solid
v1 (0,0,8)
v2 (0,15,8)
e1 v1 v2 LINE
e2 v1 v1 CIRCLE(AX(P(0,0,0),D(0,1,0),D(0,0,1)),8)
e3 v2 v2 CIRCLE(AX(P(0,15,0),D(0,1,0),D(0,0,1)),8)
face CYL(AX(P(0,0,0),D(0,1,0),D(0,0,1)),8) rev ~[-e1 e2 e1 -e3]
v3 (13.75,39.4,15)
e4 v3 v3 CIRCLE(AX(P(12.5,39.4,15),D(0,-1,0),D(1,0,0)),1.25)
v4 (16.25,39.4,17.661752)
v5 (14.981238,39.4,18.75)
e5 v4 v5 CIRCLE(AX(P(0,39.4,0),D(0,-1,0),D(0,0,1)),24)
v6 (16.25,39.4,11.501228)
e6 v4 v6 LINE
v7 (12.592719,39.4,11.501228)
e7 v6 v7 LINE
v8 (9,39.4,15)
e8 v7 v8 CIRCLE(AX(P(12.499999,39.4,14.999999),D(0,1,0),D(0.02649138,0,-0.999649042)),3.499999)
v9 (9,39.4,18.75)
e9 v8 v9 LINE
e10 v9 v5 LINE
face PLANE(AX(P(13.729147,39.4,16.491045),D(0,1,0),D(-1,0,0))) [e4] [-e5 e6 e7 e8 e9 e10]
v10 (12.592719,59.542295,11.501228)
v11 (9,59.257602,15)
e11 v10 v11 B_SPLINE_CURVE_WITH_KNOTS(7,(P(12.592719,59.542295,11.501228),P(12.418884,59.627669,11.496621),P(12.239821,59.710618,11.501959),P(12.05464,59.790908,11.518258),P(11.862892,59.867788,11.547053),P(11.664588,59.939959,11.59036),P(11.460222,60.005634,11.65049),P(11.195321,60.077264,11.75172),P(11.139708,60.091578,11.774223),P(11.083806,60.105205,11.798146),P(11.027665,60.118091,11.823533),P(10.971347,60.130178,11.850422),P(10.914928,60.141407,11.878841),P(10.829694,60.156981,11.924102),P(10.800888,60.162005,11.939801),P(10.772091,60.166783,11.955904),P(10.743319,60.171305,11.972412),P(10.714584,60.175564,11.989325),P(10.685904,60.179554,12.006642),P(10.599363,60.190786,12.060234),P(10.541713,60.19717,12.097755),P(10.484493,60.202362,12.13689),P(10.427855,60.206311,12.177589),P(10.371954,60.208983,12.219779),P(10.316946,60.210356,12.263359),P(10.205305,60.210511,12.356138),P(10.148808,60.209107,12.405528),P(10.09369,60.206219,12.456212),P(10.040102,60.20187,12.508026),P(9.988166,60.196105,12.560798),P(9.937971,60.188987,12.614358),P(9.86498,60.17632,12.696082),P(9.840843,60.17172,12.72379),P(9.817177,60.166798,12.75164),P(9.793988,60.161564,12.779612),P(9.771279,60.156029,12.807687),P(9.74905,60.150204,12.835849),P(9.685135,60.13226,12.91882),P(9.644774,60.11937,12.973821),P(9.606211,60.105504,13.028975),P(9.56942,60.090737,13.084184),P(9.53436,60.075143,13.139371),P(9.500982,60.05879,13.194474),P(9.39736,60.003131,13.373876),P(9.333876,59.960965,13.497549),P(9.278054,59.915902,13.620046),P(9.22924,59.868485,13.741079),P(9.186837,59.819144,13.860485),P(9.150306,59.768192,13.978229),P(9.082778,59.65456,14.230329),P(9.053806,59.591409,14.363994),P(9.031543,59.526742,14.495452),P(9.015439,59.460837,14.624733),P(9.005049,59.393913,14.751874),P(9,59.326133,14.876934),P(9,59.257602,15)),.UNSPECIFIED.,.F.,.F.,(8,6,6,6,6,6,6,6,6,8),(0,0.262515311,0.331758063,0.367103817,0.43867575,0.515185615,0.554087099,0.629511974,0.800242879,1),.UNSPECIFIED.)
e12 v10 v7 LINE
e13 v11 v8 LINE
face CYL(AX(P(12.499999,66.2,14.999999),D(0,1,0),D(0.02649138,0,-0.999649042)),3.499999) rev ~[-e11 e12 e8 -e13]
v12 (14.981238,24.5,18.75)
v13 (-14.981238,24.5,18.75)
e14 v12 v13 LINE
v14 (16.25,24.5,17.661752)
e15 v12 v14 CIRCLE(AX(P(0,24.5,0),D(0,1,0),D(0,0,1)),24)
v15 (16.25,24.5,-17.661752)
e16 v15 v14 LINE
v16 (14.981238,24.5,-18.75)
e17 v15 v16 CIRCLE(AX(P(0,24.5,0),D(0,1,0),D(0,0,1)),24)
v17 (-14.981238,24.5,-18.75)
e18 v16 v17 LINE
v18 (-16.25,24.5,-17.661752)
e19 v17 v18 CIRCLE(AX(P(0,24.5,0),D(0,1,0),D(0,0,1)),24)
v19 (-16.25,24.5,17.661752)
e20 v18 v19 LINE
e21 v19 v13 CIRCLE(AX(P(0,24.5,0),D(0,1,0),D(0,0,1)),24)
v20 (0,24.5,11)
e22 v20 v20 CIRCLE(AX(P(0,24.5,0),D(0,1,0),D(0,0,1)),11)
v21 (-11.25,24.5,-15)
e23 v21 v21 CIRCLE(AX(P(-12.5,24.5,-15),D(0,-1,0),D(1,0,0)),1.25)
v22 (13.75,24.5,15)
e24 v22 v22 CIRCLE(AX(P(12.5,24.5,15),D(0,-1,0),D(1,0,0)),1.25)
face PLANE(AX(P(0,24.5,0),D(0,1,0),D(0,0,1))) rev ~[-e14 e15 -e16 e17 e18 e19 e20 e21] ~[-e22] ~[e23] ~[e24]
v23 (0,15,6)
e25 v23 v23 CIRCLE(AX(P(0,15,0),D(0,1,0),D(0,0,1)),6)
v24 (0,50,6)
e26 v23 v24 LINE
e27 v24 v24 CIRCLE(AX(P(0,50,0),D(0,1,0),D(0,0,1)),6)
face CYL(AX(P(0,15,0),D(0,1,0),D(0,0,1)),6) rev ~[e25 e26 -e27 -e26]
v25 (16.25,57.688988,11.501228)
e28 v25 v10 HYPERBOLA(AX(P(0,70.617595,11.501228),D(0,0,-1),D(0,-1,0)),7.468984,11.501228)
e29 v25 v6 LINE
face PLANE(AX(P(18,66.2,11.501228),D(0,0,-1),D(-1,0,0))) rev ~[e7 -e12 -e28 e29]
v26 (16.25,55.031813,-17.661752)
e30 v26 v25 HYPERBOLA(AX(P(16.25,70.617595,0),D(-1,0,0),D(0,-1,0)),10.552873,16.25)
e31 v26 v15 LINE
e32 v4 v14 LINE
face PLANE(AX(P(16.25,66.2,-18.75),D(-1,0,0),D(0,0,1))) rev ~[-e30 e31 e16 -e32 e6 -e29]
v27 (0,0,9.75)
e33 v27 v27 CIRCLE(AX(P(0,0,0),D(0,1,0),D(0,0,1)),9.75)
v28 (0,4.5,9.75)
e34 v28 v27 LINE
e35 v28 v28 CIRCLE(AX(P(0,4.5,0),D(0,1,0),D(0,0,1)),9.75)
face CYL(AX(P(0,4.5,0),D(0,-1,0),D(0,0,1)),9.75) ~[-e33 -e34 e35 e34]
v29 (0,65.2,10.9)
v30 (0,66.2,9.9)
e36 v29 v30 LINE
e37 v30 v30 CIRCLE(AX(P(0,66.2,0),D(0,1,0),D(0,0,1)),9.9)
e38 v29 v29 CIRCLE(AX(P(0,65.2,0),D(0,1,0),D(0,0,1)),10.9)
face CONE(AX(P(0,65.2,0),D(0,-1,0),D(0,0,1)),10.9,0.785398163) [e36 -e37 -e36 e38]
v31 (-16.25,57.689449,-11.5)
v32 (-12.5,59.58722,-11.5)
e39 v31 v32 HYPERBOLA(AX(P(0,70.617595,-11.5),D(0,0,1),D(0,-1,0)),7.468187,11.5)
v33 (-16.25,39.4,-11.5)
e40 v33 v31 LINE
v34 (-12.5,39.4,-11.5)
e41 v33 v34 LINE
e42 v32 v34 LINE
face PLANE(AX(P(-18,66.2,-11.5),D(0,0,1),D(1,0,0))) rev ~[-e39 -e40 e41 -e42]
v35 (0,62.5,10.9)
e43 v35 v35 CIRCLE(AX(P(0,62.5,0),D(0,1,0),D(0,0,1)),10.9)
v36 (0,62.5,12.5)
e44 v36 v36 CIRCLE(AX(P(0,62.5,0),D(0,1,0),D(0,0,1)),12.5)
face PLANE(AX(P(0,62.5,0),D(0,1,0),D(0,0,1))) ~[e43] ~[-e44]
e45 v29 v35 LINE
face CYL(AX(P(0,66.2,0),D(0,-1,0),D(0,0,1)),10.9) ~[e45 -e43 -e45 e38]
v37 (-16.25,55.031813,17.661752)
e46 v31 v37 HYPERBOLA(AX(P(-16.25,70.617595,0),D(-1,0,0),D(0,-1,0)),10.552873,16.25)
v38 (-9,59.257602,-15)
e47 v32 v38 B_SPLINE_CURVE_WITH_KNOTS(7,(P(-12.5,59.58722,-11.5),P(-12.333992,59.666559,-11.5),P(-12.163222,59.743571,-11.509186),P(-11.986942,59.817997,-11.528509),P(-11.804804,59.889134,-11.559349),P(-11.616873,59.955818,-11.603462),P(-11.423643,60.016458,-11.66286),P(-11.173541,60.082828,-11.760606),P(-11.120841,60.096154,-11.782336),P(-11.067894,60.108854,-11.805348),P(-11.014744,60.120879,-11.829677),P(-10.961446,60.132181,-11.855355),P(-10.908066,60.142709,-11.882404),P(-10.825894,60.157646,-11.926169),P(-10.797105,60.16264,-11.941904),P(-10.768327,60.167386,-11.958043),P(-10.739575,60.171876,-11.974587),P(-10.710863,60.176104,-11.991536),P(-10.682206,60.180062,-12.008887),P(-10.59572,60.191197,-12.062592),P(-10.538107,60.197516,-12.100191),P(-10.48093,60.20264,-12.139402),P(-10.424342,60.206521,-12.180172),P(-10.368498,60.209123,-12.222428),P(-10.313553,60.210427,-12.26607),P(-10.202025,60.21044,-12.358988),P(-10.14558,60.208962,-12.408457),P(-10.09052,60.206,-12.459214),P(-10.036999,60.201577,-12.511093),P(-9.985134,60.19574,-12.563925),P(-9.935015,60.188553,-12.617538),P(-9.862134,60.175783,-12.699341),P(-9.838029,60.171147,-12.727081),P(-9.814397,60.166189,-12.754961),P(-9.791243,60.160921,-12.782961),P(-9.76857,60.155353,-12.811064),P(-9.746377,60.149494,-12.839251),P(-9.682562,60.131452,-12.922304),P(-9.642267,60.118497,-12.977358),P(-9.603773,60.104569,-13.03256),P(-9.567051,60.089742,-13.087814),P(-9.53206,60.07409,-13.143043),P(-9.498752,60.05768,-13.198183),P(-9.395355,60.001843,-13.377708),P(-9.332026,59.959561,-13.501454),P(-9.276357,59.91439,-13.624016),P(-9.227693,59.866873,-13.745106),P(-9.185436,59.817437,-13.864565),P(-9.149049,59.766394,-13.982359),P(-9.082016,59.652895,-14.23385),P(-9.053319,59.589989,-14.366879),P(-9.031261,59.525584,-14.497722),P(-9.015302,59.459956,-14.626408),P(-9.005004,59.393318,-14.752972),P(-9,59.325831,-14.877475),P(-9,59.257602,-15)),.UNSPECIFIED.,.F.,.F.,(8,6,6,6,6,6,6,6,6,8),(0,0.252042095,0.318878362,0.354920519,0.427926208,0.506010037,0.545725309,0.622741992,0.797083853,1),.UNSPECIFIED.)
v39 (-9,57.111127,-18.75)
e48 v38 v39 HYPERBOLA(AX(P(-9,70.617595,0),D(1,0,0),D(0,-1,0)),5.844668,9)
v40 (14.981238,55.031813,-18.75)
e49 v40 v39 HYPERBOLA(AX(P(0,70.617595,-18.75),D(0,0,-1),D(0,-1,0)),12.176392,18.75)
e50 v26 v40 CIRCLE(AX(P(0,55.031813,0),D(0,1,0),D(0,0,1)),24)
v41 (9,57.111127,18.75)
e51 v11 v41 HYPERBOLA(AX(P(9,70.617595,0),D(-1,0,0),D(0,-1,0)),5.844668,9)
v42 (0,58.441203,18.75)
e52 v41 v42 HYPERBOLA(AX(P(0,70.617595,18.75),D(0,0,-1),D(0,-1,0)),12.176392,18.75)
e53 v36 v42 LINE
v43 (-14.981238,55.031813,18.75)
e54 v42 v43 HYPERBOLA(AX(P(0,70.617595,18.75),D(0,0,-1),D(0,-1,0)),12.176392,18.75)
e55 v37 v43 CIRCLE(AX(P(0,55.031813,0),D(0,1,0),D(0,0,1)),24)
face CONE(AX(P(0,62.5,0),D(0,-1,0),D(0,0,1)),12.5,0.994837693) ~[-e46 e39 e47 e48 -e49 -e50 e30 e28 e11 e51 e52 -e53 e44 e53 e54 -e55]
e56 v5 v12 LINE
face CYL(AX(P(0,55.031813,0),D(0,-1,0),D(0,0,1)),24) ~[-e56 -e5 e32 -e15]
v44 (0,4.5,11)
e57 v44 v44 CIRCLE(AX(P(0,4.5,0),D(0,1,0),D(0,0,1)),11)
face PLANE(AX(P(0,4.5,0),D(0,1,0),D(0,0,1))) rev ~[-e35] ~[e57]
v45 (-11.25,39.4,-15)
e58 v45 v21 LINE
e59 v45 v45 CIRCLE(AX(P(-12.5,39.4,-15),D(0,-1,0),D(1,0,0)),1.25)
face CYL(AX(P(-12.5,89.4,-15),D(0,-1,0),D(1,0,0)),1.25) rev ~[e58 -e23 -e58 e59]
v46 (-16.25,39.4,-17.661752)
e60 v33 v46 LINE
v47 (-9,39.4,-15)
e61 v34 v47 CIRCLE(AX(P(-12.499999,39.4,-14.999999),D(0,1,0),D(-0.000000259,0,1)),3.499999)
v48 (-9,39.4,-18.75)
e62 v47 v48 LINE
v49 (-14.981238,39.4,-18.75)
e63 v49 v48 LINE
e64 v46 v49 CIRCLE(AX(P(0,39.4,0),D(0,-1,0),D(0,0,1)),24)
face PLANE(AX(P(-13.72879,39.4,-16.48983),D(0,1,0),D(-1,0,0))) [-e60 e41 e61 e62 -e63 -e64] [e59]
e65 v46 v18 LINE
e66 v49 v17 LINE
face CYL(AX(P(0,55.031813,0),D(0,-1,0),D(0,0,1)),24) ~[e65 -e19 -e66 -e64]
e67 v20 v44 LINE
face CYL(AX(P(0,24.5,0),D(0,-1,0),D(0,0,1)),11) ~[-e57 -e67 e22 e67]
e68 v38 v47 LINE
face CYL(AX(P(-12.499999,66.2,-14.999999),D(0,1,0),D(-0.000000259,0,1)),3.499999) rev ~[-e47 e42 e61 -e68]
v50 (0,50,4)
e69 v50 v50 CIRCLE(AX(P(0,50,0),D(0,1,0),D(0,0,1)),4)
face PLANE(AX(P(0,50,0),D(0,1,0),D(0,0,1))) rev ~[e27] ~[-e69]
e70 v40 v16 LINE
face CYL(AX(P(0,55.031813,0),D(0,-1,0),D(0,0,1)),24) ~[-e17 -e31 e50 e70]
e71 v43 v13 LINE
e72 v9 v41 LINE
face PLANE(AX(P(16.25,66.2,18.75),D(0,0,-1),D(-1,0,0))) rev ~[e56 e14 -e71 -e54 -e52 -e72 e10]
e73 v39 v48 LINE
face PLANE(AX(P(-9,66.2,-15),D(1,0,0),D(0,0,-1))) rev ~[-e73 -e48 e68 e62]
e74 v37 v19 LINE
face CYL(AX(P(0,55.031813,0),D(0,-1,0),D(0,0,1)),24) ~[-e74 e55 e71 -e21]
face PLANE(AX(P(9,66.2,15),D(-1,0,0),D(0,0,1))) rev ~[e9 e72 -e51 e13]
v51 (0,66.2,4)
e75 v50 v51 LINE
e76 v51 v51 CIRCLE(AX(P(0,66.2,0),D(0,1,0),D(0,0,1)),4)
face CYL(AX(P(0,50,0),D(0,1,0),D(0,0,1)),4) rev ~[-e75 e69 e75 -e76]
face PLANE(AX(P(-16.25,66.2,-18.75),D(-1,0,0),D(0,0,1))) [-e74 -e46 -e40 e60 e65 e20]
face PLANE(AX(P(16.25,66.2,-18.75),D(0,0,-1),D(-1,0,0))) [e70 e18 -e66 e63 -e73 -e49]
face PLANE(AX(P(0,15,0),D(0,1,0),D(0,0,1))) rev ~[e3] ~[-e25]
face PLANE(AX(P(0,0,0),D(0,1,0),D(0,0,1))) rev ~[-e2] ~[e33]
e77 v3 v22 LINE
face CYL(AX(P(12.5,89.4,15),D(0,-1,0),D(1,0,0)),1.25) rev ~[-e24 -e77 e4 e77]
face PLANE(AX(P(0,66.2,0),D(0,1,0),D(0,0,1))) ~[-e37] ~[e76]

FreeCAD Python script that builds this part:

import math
import FreeCAD as App
import Part
import Sketcher

V = App.Vector
Q = App.Units.Quantity


def edges_at(feature, points):
    """Names of the edges that pass closest to the given points."""
    edges = feature.Shape.Edges
    near = lambda p: min(range(len(edges)), key=lambda i: edges[i].distToShape(Part.Vertex(*p))[0])
    return sorted({f"Edge{near(p) + 1}" for p in points})

doc = App.newDocument("Part")
body = doc.addObject("PartDesign::Body", "Body")

# Sketch on YZ plane
sketch1 = body.newObject("Sketcher::SketchObject", "Sketch")
sketch1.AttachmentSupport = (doc.getObject("YZ_Plane"), [""])
sketch1.MapMode = "FlatFace"
sketch1.addGeometry(Part.LineSegment(V(24.5, 11, 0), V(4.5, 11, 0)), False)
sketch1.addGeometry(Part.LineSegment(V(4.5, 11, 0), V(4.5, 9.75, 0)), False)
sketch1.addGeometry(Part.LineSegment(V(4.5, 9.75, 0), V(0, 9.75, 0)), False)
sketch1.addGeometry(Part.LineSegment(V(0, 9.75, 0), V(0, 8, 0)), False)
sketch1.addGeometry(Part.LineSegment(V(0, 8, 0), V(15, 8, 0)), False)
sketch1.addGeometry(Part.LineSegment(V(15, 8, 0), V(15, 6, 0)), False)
sketch1.addGeometry(Part.LineSegment(V(15, 6, 0), V(50, 6, 0)), False)
sketch1.addGeometry(Part.LineSegment(V(50, 6, 0), V(50, 4, 0)), False)
sketch1.addGeometry(Part.LineSegment(V(50, 4, 0), V(66.2, 4, 0)), False)
sketch1.addGeometry(Part.LineSegment(V(66.2, 4, 0), V(66.2, 10.9, 0)), False)
sketch1.addGeometry(Part.LineSegment(V(66.2, 10.9, 0), V(62.5, 10.9, 0)), False)
sketch1.addGeometry(Part.LineSegment(V(62.5, 10.9, 0), V(62.5, 12.5, 0)), False)
sketch1.addGeometry(Part.LineSegment(V(62.5, 12.5, 0), V(55.031813, 24, 0)), False)
sketch1.addGeometry(Part.LineSegment(V(55.031813, 24, 0), V(24.5, 24, 0)), False)
sketch1.addGeometry(Part.LineSegment(V(24.5, 24, 0), V(24.5, 11, 0)), False)
sketch1.addConstraint(Sketcher.Constraint("Coincident", 0, 2, 1, 1))
sketch1.addConstraint(Sketcher.Constraint("Coincident", 1, 2, 2, 1))
sketch1.addConstraint(Sketcher.Constraint("Coincident", 2, 2, 3, 1))
sketch1.addConstraint(Sketcher.Constraint("Coincident", 3, 2, 4, 1))
sketch1.addConstraint(Sketcher.Constraint("Coincident", 4, 2, 5, 1))
sketch1.addConstraint(Sketcher.Constraint("Coincident", 5, 2, 6, 1))
sketch1.addConstraint(Sketcher.Constraint("Coincident", 6, 2, 7, 1))
sketch1.addConstraint(Sketcher.Constraint("Coincident", 7, 2, 8, 1))
sketch1.addConstraint(Sketcher.Constraint("Coincident", 8, 2, 9, 1))
sketch1.addConstraint(Sketcher.Constraint("Coincident", 9, 2, 10, 1))
sketch1.addConstraint(Sketcher.Constraint("Coincident", 10, 2, 11, 1))
sketch1.addConstraint(Sketcher.Constraint("Coincident", 11, 2, 12, 1))
sketch1.addConstraint(Sketcher.Constraint("Coincident", 12, 2, 13, 1))
sketch1.addConstraint(Sketcher.Constraint("Coincident", 13, 2, 14, 1))
sketch1.addConstraint(Sketcher.Constraint("Coincident", 14, 2, 0, 1))
sketch1.addConstraint(Sketcher.Constraint("Horizontal", 0))
sketch1.addConstraint(Sketcher.Constraint("Vertical", 1))
sketch1.addConstraint(Sketcher.Constraint("Horizontal", 2))
sketch1.addConstraint(Sketcher.Constraint("Vertical", 3))
sketch1.addConstraint(Sketcher.Constraint("Horizontal", 4))
sketch1.addConstraint(Sketcher.Constraint("Vertical", 5))
sketch1.addConstraint(Sketcher.Constraint("Horizontal", 6))
sketch1.addConstraint(Sketcher.Constraint("Vertical", 7))
sketch1.addConstraint(Sketcher.Constraint("Horizontal", 8))
sketch1.addConstraint(Sketcher.Constraint("Vertical", 9))
sketch1.addConstraint(Sketcher.Constraint("Horizontal", 10))
sketch1.addConstraint(Sketcher.Constraint("Vertical", 11))
sketch1.addConstraint(Sketcher.Constraint("Horizontal", 13))
sketch1.addConstraint(Sketcher.Constraint("Vertical", 14))
sketch1.addConstraint(Sketcher.Constraint("PointOnObject", 2, 2, -2))
sketch1.addConstraint(Sketcher.Constraint("Equal", 5, 7))
sketch1.addConstraint(Sketcher.Constraint("DistanceX", 0, 2, 0, 1, Q("20 mm")))
sketch1.addConstraint(Sketcher.Constraint("DistanceX", 4, 1, 4, 2, Q("15 mm")))
sketch1.addConstraint(Sketcher.Constraint("DistanceX", 6, 1, 6, 2, Q("35 mm")))
sketch1.addConstraint(Sketcher.Constraint("DistanceY", 5, 2, 5, 1, Q("2 mm")))
sketch1.addConstraint(Sketcher.Constraint("DistanceY", 14, 2, 14, 1, Q("13 mm")))
sketch1.addConstraint(Sketcher.Constraint("Angle", 12, Q("122.999999 deg")))
sketch1.addConstraint(Sketcher.Constraint("DistanceX", 2, 2, 2, 1, Q("4.5 mm")))
sketch1.addConstraint(Sketcher.Constraint("DistanceX", 8, 1, 8, 2, Q("16.2 mm")))
sketch1.addConstraint(Sketcher.Constraint("DistanceX", 10, 2, 10, 1, Q("3.7 mm")))
sketch1.addConstraint(Sketcher.Constraint("DistanceY", 9, 1, 9, 2, Q("6.9 mm")))
sketch1.addConstraint(Sketcher.Constraint("DistanceY", 11, 1, 11, 2, Q("1.6 mm")))
sketch1.addConstraint(Sketcher.Constraint("DistanceY", -1, 1, 0, 2, Q("11 mm")))
sketch1.addConstraint(Sketcher.Constraint("DistanceY", -1, 1, 3, 2, Q("8 mm")))
sketch1.addConstraint(Sketcher.Constraint("DistanceY", 1, 2, 1, 1, Q("1.25 mm")))
revolution = body.newObject("PartDesign::Revolution", "Revolution")
revolution.Profile = sketch1
revolution.ReferenceAxis = (sketch1, ["H_Axis"])
revolution.Angle = 360

# Sketch on XZ plane
sketch2 = body.newObject("Sketcher::SketchObject", "Sketch001")
sketch2.AttachmentSupport = (doc.getObject("XZ_Plane"), [""])
sketch2.MapMode = "FlatFace"
sketch2.AttachmentOffset = App.Placement(V(0, 0, -66.2), App.Rotation())
sketch2.addGeometry(Part.LineSegment(V(37.961272, 36.729455, 0), V(37.961272, -41.678671, 0)), False)
sketch2.addGeometry(Part.LineSegment(V(37.961272, -41.678671, 0), V(-41.166195, -41.678671, 0)), False)
sketch2.addGeometry(Part.LineSegment(V(-41.166195, -41.678671, 0), V(-41.166195, 36.729455, 0)), False)
sketch2.addGeometry(Part.LineSegment(V(-41.166195, 36.729455, 0), V(37.961272, 36.729455, 0)), False)
sketch2.addGeometry(Part.LineSegment(V(-16.25, -18.75, 0), V(16.25, -18.75, 0)), False)
sketch2.addGeometry(Part.LineSegment(V(16.25, -18.75, 0), V(16.25, 18.75, 0)), False)
sketch2.addGeometry(Part.LineSegment(V(16.25, 18.75, 0), V(-16.25, 18.75, 0)), False)
sketch2.addGeometry(Part.LineSegment(V(-16.25, 18.75, 0), V(-16.25, -18.75, 0)), False)
sketch2.addConstraint(Sketcher.Constraint("Coincident", 0, 2, 1, 1))
sketch2.addConstraint(Sketcher.Constraint("Coincident", 1, 2, 2, 1))
sketch2.addConstraint(Sketcher.Constraint("Coincident", 2, 2, 3, 1))
sketch2.addConstraint(Sketcher.Constraint("Coincident", 3, 2, 0, 1))
sketch2.addConstraint(Sketcher.Constraint("Coincident", 4, 2, 5, 1))
sketch2.addConstraint(Sketcher.Constraint("Coincident", 5, 2, 6, 1))
sketch2.addConstraint(Sketcher.Constraint("Coincident", 6, 2, 7, 1))
sketch2.addConstraint(Sketcher.Constraint("Coincident", 7, 2, 4, 1))
sketch2.addConstraint(Sketcher.Constraint("Vertical", 0))
sketch2.addConstraint(Sketcher.Constraint("Horizontal", 1))
sketch2.addConstraint(Sketcher.Constraint("Vertical", 2))
sketch2.addConstraint(Sketcher.Constraint("Horizontal", 3))
sketch2.addConstraint(Sketcher.Constraint("Horizontal", 4))
sketch2.addConstraint(Sketcher.Constraint("Vertical", 5))
sketch2.addConstraint(Sketcher.Constraint("Horizontal", 6))
sketch2.addConstraint(Sketcher.Constraint("Vertical", 7))
sketch2.addConstraint(Sketcher.Constraint("Symmetric", 4, 2, 6, 2, -1, 1))
sketch2.addConstraint(Sketcher.Constraint("DistanceX", 4, 1, 4, 2, Q("32.5 mm")))
sketch2.addConstraint(Sketcher.Constraint("DistanceY", 5, 1, 5, 2, Q("37.5 mm")))
sketch2.addConstraint(Sketcher.Constraint("DistanceX", 1, 2, 1, 1, Q("79.127467 mm")))
sketch2.addConstraint(Sketcher.Constraint("DistanceY", 0, 2, 0, 1, Q("78.408126 mm")))
sketch2.addConstraint(Sketcher.Constraint("DistanceY", 0, 2, -1, 1, Q("41.678671 mm")))
sketch2.addConstraint(Sketcher.Constraint("DistanceX", -1, 1, 0, 2, Q("37.961272 mm")))
pocket1 = body.newObject("PartDesign::Pocket", "Pocket")
pocket1.Profile = sketch2
pocket1.Type = "ThroughAll"
pocket1.Reversed = True

# Sketch on XZ plane
sketch3 = body.newObject("Sketcher::SketchObject", "Sketch002")
sketch3.AttachmentSupport = (doc.getObject("XZ_Plane"), [""])
sketch3.MapMode = "FlatFace"
sketch3.AttachmentOffset = App.Placement(V(0, 0, -66.2), App.Rotation())
sketch3.addGeometry(Part.LineSegment(V(18, 11.501228, 0), V(12.592719, 11.501228, 0)), False)
sketch3.addGeometry(Part.ArcOfCircle(Part.Circle(V(12.499999, 14.999999, 0), V(0, 0, 1), 3.499999), math.radians(179.999981), math.radians(271.518022)), False)
sketch3.addGeometry(Part.LineSegment(V(9, 15, 0), V(9, 21, 0)), False)
sketch3.addGeometry(Part.LineSegment(V(9, 21, 0), V(18, 21, 0)), False)
sketch3.addGeometry(Part.LineSegment(V(18, 21, 0), V(18, 11.501228, 0)), False)
sketch3.addGeometry(Part.LineSegment(V(-18, -11.5, 0), V(-12.5, -11.5, 0)), False)
sketch3.addGeometry(Part.ArcOfCircle(Part.Circle(V(-12.499999, -14.999999, 0), V(0, 0, 1), 3.499999), math.radians(-0.000015), math.radians(90.000015)), False)
sketch3.addGeometry(Part.LineSegment(V(-9, -15, 0), V(-9, -21, 0)), False)
sketch3.addGeometry(Part.LineSegment(V(-9, -21, 0), V(-18, -21, 0)), False)
sketch3.addGeometry(Part.LineSegment(V(-18, -21, 0), V(-18, -11.5, 0)), False)
sketch3.addConstraint(Sketcher.Constraint("Coincident", 0, 2, 1, 2))
sketch3.addConstraint(Sketcher.Constraint("Tangent", 1, 1, 2, 1))
sketch3.addConstraint(Sketcher.Constraint("Coincident", 2, 2, 3, 1))
sketch3.addConstraint(Sketcher.Constraint("Coincident", 3, 2, 4, 1))
sketch3.addConstraint(Sketcher.Constraint("Coincident", 4, 2, 0, 1))
sketch3.addConstraint(Sketcher.Constraint("Tangent", 5, 2, 6, 2))
sketch3.addConstraint(Sketcher.Constraint("Tangent", 6, 1, 7, 1))
sketch3.addConstraint(Sketcher.Constraint("Coincident", 7, 2, 8, 1))
sketch3.addConstraint(Sketcher.Constraint("Coincident", 8, 2, 9, 1))
sketch3.addConstraint(Sketcher.Constraint("Coincident", 9, 2, 5, 1))
sketch3.addConstraint(Sketcher.Constraint("Horizontal", 0))
sketch3.addConstraint(Sketcher.Constraint("Vertical", 2))
sketch3.addConstraint(Sketcher.Constraint("Horizontal", 3))
sketch3.addConstraint(Sketcher.Constraint("Vertical", 4))
sketch3.addConstraint(Sketcher.Constraint("Horizontal", 5))
sketch3.addConstraint(Sketcher.Constraint("Vertical", 7))
sketch3.addConstraint(Sketcher.Constraint("Horizontal", 8))
sketch3.addConstraint(Sketcher.Constraint("Vertical", 9))
sketch3.addConstraint(Sketcher.Constraint("Equal", 1, 6))
sketch3.addConstraint(Sketcher.Constraint("Symmetric", 1, 3, 6, 3, -1, 1))
sketch3.addConstraint(Sketcher.Constraint("Symmetric", 3, 2, 8, 2, -1, 1))
sketch3.addConstraint(Sketcher.Constraint("Radius", 1, Q("3.499999 mm")))
sketch3.addConstraint(Sketcher.Constraint("DistanceX", 3, 1, 3, 2, Q("9 mm")))
sketch3.addConstraint(Sketcher.Constraint("DistanceY", 2, 1, 2, 2, Q("6 mm")))
sketch3.addConstraint(Sketcher.Constraint("DistanceY", -1, 1, 1, 3, Q("14.999999 mm")))
sketch3.addConstraint(Sketcher.Constraint("DistanceX", -1, 1, 1, 1, Q("9 mm")))
sketch3.addConstraint(Sketcher.Constraint("DistanceX", 0, 2, 0, 1, Q("5.407281 mm")))
pocket2 = body.newObject("PartDesign::Pocket", "Pocket001")
pocket2.Profile = sketch3
pocket2.Length = 26.8
pocket2.Reversed = True

# Sketch on XZ plane
sketch4 = body.newObject("Sketcher::SketchObject", "Sketch003")
sketch4.AttachmentSupport = (doc.getObject("XZ_Plane"), [""])
sketch4.MapMode = "FlatFace"
sketch4.AttachmentOffset = App.Placement(V(0, 0, -39.4), App.Rotation())
sketch4.addGeometry(Part.Circle(V(12.5, 15, 0), V(0, 0, 1), 1.25), False)
sketch4.addGeometry(Part.Circle(V(-12.5, -15, 0), V(0, 0, 1), 1.25), False)
sketch4.addConstraint(Sketcher.Constraint("Equal", 0, 1))
sketch4.addConstraint(Sketcher.Constraint("Symmetric", 0, 3, 1, 3, -1, 1))
sketch4.addConstraint(Sketcher.Constraint("Diameter", 0, Q("2.5 mm")))
sketch4.addConstraint(Sketcher.Constraint("DistanceY", -1, 1, 0, 3, Q("15 mm")))
sketch4.addConstraint(Sketcher.Constraint("DistanceX", 1, 3, 0, 3, Q("25 mm")))
doc.recompute()
hole = body.newObject("PartDesign::Hole", "Hole")
hole.Profile = sketch4
hole.ThreadType = "None"
hole.Diameter = 2.5
hole.DepthType = "Dimension"
hole.Depth = 50
hole.DrillPoint = "Flat"
hole.Reversed = True
doc.recompute()

chamfer = body.newObject("PartDesign::Chamfer", "Chamfer")
chamfer.Base = (hole, edges_at(hole, [(0, 66.2, -10.9)]))
chamfer.Size = 1

doc.recompute()
